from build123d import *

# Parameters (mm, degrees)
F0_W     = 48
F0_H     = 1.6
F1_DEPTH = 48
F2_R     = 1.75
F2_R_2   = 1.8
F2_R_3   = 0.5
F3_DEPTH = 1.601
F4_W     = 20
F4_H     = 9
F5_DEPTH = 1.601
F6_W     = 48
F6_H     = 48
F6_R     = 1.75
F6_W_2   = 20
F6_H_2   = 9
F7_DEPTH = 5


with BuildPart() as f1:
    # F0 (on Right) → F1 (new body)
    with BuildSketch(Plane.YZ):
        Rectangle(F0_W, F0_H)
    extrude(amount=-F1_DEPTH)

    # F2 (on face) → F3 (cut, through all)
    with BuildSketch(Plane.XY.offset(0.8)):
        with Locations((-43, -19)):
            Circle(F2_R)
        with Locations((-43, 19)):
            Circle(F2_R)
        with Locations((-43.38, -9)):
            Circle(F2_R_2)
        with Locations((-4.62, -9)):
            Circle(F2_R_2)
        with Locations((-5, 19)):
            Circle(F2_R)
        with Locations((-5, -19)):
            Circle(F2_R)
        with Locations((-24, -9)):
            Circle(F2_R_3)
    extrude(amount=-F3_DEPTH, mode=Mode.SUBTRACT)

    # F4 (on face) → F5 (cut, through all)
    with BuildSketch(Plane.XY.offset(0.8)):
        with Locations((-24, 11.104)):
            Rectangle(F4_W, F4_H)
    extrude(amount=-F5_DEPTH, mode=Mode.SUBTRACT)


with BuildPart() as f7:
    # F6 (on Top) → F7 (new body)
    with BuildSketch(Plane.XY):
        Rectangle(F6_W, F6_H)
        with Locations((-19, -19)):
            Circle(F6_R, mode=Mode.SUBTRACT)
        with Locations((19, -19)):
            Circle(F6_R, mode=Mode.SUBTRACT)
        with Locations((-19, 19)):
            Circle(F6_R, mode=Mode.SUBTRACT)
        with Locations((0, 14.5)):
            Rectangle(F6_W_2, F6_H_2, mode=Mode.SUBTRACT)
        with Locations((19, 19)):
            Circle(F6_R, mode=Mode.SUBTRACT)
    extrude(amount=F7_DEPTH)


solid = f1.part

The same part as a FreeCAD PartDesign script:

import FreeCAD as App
import Part
import Sketcher
from FreeCAD import Vector
Q = App.Units.Quantity

doc = App.newDocument("Part")
body = doc.addObject("PartDesign::Body", "Body")

sketch1 = doc.addObject("Sketcher::SketchObject", "Sketch")
body.addObject(sketch1)
sketch1.AttachmentSupport = (doc.YZ_Plane, [""])
sketch1.MapMode = "FlatFace"
sketch1.addGeometry(Part.LineSegment(Vector(-24, 0.8, 0), Vector(-24, -0.8, 0)), False)
sketch1.addGeometry(Part.LineSegment(Vector(-24, -0.8, 0), Vector(24, -0.8, 0)), False)
sketch1.addGeometry(Part.LineSegment(Vector(24, -0.8, 0), Vector(24, 0.8, 0)), False)
sketch1.addGeometry(Part.LineSegment(Vector(24, 0.8, 0), Vector(-24, 0.8, 0)), False)
sketch1.addConstraint(Sketcher.Constraint("Coincident", 0, 2, 1, 1))
sketch1.addConstraint(Sketcher.Constraint("Coincident", 1, 2, 2, 1))
sketch1.addConstraint(Sketcher.Constraint("Coincident", 2, 2, 3, 1))
sketch1.addConstraint(Sketcher.Constraint("Coincident", 3, 2, 0, 1))
sketch1.addConstraint(Sketcher.Constraint("Vertical", 0))
sketch1.addConstraint(Sketcher.Constraint("Horizontal", 1))
sketch1.addConstraint(Sketcher.Constraint("Vertical", 2))
sketch1.addConstraint(Sketcher.Constraint("Horizontal", 3))
sketch1.addConstraint(Sketcher.Constraint("Symmetric", 0, 2, 2, 2, -1, 1))
sketch1.addConstraint(Sketcher.Constraint("DistanceX", 1, 1, 1, 2, Q("48 mm")))
sketch1.addConstraint(Sketcher.Constraint("DistanceY", 0, 2, 0, 1, Q("1.6 mm")))
pad1 = doc.addObject("PartDesign::Pad", "Pad")
body.addObject(pad1)
pad1.Profile = sketch1
pad1.Length = 48
pad1.Reversed = True

sketch2 = doc.addObject("Sketcher::SketchObject", "Sketch001")
body.addObject(sketch2)
sketch2.AttachmentSupport = (doc.XY_Plane, [""])
sketch2.MapMode = "FlatFace"
sketch2.AttachmentOffset = App.Placement(Vector(0, 0, 0.8), App.Rotation())
sketch2.addGeometry(Part.Circle(Vector(-43, -19, 0), Vector(0, 0, 1), 1.8), False)
sketch2.addGeometry(Part.Circle(Vector(-43, 19, 0), Vector(0, 0, 1), 1.8), False)
sketch2.addGeometry(Part.Circle(Vector(-43.4, -9, 0), Vector(0, 0, 1), 1.8), False)
sketch2.addGeometry(Part.Circle(Vector(-4.6, -9, 0), Vector(0, 0, 1), 1.8), False)
sketch2.addGeometry(Part.Circle(Vector(-5, 19, 0), Vector(0, 0, 1), 1.8), False)
sketch2.addGeometry(Part.Circle(Vector(-5, -19, 0), Vector(0, 0, 1), 1.8), False)
sketch2.addGeometry(Part.Circle(Vector(-24, -9, 0), Vector(0, 0, 1), 0.5), False)
sketch2.addConstraint(Sketcher.Constraint("Equal", 0, 1))
sketch2.addConstraint(Sketcher.Constraint("Equal", 2, 3))
sketch2.addConstraint(Sketcher.Constraint("Equal", 1, 4))
sketch2.addConstraint(Sketcher.Constraint("Equal", 4, 5))
sketch2.addConstraint(Sketcher.Constraint("Symmetric", 0, 3, 1, 3, -1))
sketch2.addConstraint(Sketcher.Constraint("Symmetric", 4, 3, 5, 3, -1))
sketch2.addConstraint(Sketcher.Constraint("Horizontal", 2, 3, 3, 3))
sketch2.addConstraint(Sketcher.Constraint("Horizontal", 1, 3, 4, 3))
sketch2.addConstraint(Sketcher.Constraint("Horizontal", 3, 3, 6, 3))
sketch2.addConstraint(Sketcher.Constraint("Diameter", 6, Q("1 mm")))
sketch2.addConstraint(Sketcher.Constraint("Diameter", 0, Q("3.5 mm")))
sketch2.addConstraint(Sketcher.Constraint("Diameter", 2, Q("3.6 mm")))
sketch2.addConstraint(Sketcher.Constraint("DistanceX", 0, 3, -1, 1, Q("43 mm")))
sketch2.addConstraint(Sketcher.Constraint("DistanceY", 0, 3, -1, 1, Q("19 mm")))
sketch2.addConstraint(Sketcher.Constraint("DistanceY", 2, 3, -1, 1, Q("9 mm")))
sketch2.addConstraint(Sketcher.Constraint("DistanceX", 4, 3, -1, 1, Q("5 mm")))
sketch2.addConstraint(Sketcher.Constraint("DistanceX", 6, 3, -1, 1, Q("24 mm")))
sketch2.addConstraint(Sketcher.Constraint("DistanceX", 2, 3, -1, 1, Q("43.38 mm")))
sketch2.addConstraint(Sketcher.Constraint("DistanceX", 3, 3, -1, 1, Q("4.62 mm")))
pocket1 = doc.addObject("PartDesign::Pocket", "Pocket")
body.addObject(pocket1)
pocket1.Profile = sketch2
pocket1.Type = "ThroughAll"

sketch3 = doc.addObject("Sketcher::SketchObject", "Sketch002")
body.addObject(sketch3)
sketch3.AttachmentSupport = (doc.XY_Plane, [""])
sketch3.MapMode = "FlatFace"
sketch3.AttachmentOffset = App.Placement(Vector(0, 0, 0.8), App.Rotation())
sketch3.addGeometry(Part.LineSegment(Vector(-34, 16, 0), Vector(-34, 7, 0)), False)
sketch3.addGeometry(Part.LineSegment(Vector(-34, 7, 0), Vector(-14, 7, 0)), False)
sketch3.addGeometry(Part.LineSegment(Vector(-14, 7, 0), Vector(-14, 16, 0)), False)
sketch3.addGeometry(Part.LineSegment(Vector(-14, 16, 0), Vector(-34, 16, 0)), False)
sketch3.addConstraint(Sketcher.Constraint("Coincident", 0, 2, 1, 1))
sketch3.addConstraint(Sketcher.Constraint("Coincident", 1, 2, 2, 1))
sketch3.addConstraint(Sketcher.Constraint("Coincident", 2, 2, 3, 1))
sketch3.addConstraint(Sketcher.Constraint("Coincident", 3, 2, 0, 1))
sketch3.addConstraint(Sketcher.Constraint("Vertical", 0))
sketch3.addConstraint(Sketcher.Constraint("Horizontal", 1))
sketch3.addConstraint(Sketcher.Constraint("Vertical", 2))
sketch3.addConstraint(Sketcher.Constraint("Horizontal", 3))
sketch3.addConstraint(Sketcher.Constraint("DistanceX", 1, 1, 1, 2, Q("20 mm")))
sketch3.addConstraint(Sketcher.Constraint("DistanceY", 0, 2, 0, 1, Q("9 mm")))
sketch3.addConstraint(Sketcher.Constraint("DistanceX", 0, 2, -1, 1, Q("34 mm")))
sketch3.addConstraint(Sketcher.Constraint("DistanceY", -1, 1, 0, 2, Q("6.604 mm")))
pocket2 = doc.addObject("PartDesign::Pocket", "Pocket001")
body.addObject(pocket2)
pocket2.Profile = sketch3
pocket2.Type = "ThroughAll"
body2 = doc.addObject("PartDesign::Body", "Body001")

sketch4 = doc.addObject("Sketcher::SketchObject", "Sketch003")
body2.addObject(sketch4)
sketch4.AttachmentSupport = (doc.getObject("XY_Plane001"), [""])
sketch4.MapMode = "FlatFace"
sketch4.addGeometry(Part.LineSegment(Vector(-24, 24, 0), Vector(-24, -24, 0)), False)
sketch4.addGeometry(Part.LineSegment(Vector(-24, -24, 0), Vector(24, -24, 0)), False)
sketch4.addGeometry(Part.LineSegment(Vector(24, -24, 0), Vector(24, 24, 0)), False)
sketch4.addGeometry(Part.LineSegment(Vector(24, 24, 0), Vector(-24, 24, 0)), False)
sketch4.addGeometry(Part.Circle(Vector(-19, -19, 0), Vector(0, 0, 1), 1.8), False)
sketch4.addGeometry(Part.Circle(Vector(19, -19, 0), Vector(0, 0, 1), 1.8), False)
sketch4.addGeometry(Part.Circle(Vector(-19, 19, 0), Vector(0, 0, 1), 1.8), False)
sketch4.addGeometry(Part.LineSegment(Vector(10, 10, 0), Vector(-10, 10, 0)), False)
sketch4.addGeometry(Part.LineSegment(Vector(-10, 10, 0), Vector(-10, 19, 0)), False)
sketch4.addGeometry(Part.LineSegment(Vector(-10, 19, 0), Vector(10, 19, 0)), False)
sketch4.addGeometry(Part.LineSegment(Vector(10, 19, 0), Vector(10, 10, 0)), False)
sketch4.addGeometry(Part.Circle(Vector(19, 19, 0), Vector(0, 0, 1), 1.8), False)
sketch4.addConstraint(Sketcher.Constraint("Coincident", 0, 2, 1, 1))
sketch4.addConstraint(Sketcher.Constraint("Coincident", 1, 2, 2, 1))
sketch4.addConstraint(Sketcher.Constraint("Coincident", 2, 2, 3, 1))
sketch4.addConstraint(Sketcher.Constraint("Coincident", 3, 2, 0, 1))
sketch4.addConstraint(Sketcher.Constraint("Coincident", 7, 2, 8, 1))
sketch4.addConstraint(Sketcher.Constraint("Coincident", 8, 2, 9, 1))
sketch4.addConstraint(Sketcher.Constraint("Coincident", 9, 2, 10, 1))
sketch4.addConstraint(Sketcher.Constraint("Coincident", 10, 2, 7, 1))
sketch4.addConstraint(Sketcher.Constraint("Vertical", 0))
sketch4.addConstraint(Sketcher.Constraint("Horizontal", 1))
sketch4.addConstraint(Sketcher.Constraint("Vertical", 2))
sketch4.addConstraint(Sketcher.Constraint("Horizontal", 3))
sketch4.addConstraint(Sketcher.Constraint("Horizontal", 7))
sketch4.addConstraint(Sketcher.Constraint("Vertical", 8))
sketch4.addConstraint(Sketcher.Constraint("Horizontal", 9))
sketch4.addConstraint(Sketcher.Constraint("Vertical", 10))
sketch4.addConstraint(Sketcher.Constraint("Equal", 4, 5))
sketch4.addConstraint(Sketcher.Constraint("Equal", 5, 6))
sketch4.addConstraint(Sketcher.Constraint("Equal", 6, 11))
sketch4.addConstraint(Sketcher.Constraint("Symmetric", 5, 3, 6, 3, -1, 1))
sketch4.addConstraint(Sketcher.Constraint("Symmetric", 4, 3, 11, 3, -1, 1))
sketch4.addConstraint(Sketcher.Constraint("Symmetric", 0, 2, 2, 2, -1, 1))
sketch4.addConstraint(Sketcher.Constraint("Symmetric", 4, 3, 5, 3, -2))
sketch4.addConstraint(Sketcher.Constraint("Horizontal", 11, 3, 8, 2))
sketch4.addConstraint(Sketcher.Constraint("Equal", 3, 0))
sketch4.addConstraint(Sketcher.Constraint("Diameter", 4, Q("3.5 mm")))
sketch4.addConstraint(Sketcher.Constraint("DistanceX", 1, 1, 1, 2, Q("48 mm")))
sketch4.addConstraint(Sketcher.Constraint("DistanceX", 7, 2, 7, 1, Q("20 mm")))
sketch4.addConstraint(Sketcher.Constraint("DistanceY", 8, 1, 8, 2, Q("9 mm")))
sketch4.addConstraint(Sketcher.Constraint("DistanceX", 4, 3, -1, 1, Q("19 mm")))
sketch4.addConstraint(Sketcher.Constraint("DistanceY", 4, 3, -1, 1, Q("19 mm")))
sketch4.addConstraint(Sketcher.Constraint("DistanceX", 7, 2, -1, 1, Q("10 mm")))
pad2 = doc.addObject("PartDesign::Pad", "Pad001")
body2.addObject(pad2)
pad2.Profile = sketch4
pad2.Length = 5
body2.Visibility = False

doc.recompute()
